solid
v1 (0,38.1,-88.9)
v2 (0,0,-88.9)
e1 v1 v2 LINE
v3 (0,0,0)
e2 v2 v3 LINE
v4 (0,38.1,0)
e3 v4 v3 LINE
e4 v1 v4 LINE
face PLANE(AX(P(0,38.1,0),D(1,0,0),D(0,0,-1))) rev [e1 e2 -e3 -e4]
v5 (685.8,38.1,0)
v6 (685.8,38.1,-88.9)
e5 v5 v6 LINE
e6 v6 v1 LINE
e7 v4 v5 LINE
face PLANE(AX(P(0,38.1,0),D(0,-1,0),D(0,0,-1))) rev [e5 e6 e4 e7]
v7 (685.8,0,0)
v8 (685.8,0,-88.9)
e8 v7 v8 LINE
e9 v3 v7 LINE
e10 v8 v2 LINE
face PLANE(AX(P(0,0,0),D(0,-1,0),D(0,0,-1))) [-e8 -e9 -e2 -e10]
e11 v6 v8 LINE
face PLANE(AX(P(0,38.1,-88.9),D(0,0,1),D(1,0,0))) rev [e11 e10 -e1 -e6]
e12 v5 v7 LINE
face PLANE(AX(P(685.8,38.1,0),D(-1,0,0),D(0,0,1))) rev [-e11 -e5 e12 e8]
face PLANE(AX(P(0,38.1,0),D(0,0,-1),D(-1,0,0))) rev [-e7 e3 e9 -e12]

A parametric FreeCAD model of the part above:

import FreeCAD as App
import Part
import Sketcher
from FreeCAD import Vector
Q = App.Units.Quantity

doc = App.newDocument("Part")
body = doc.addObject("PartDesign::Body", "Body")

# Sketch on XZ plane
sketch1 = body.newObject("Sketcher::SketchObject", "Sketch")
sketch1.AttachmentSupport = (doc.getObject("XZ_Plane"), [""])
sketch1.MapMode = "FlatFace"
sketch1.addGeometry(Part.LineSegment(Vector(0, -88.9, 0), Vector(0, 0, 0)), False)
sketch1.addGeometry(Part.LineSegment(Vector(0, 0, 0), Vector(685.8, 0, 0)), False)
sketch1.addGeometry(Part.LineSegment(Vector(685.8, 0, 0), Vector(685.8, -88.9, 0)), False)
sketch1.addGeometry(Part.LineSegment(Vector(685.8, -88.9, 0), Vector(0, -88.9, 0)), False)
sketch1.addConstraint(Sketcher.Constraint("Coincident", 0, 2, 1, 1))
sketch1.addConstraint(Sketcher.Constraint("Coincident", 1, 2, 2, 1))
sketch1.addConstraint(Sketcher.Constraint("Coincident", 2, 2, 3, 1))
sketch1.addConstraint(Sketcher.Constraint("Coincident", 3, 2, 0, 1))
sketch1.addConstraint(Sketcher.Constraint("Vertical", 0))
sketch1.addConstraint(Sketcher.Constraint("Horizontal", 1))
sketch1.addConstraint(Sketcher.Constraint("Vertical", 2))
sketch1.addConstraint(Sketcher.Constraint("Horizontal", 3))
sketch1.addConstraint(Sketcher.Constraint("Coincident", 0, 2, -1, 1))
sketch1.addConstraint(Sketcher.Constraint("DistanceX", 1, 1, 1, 2, Q("27 in")))
sketch1.addConstraint(Sketcher.Constraint("DistanceY", 0, 1, 0, 2, Q("3.5 in")))
pad1 = body.newObject("PartDesign::Pad", "Pad")
pad1.Profile = sketch1
pad1.Length = Q("1.5 in")
pad1.Reversed = True

doc.recompute()
